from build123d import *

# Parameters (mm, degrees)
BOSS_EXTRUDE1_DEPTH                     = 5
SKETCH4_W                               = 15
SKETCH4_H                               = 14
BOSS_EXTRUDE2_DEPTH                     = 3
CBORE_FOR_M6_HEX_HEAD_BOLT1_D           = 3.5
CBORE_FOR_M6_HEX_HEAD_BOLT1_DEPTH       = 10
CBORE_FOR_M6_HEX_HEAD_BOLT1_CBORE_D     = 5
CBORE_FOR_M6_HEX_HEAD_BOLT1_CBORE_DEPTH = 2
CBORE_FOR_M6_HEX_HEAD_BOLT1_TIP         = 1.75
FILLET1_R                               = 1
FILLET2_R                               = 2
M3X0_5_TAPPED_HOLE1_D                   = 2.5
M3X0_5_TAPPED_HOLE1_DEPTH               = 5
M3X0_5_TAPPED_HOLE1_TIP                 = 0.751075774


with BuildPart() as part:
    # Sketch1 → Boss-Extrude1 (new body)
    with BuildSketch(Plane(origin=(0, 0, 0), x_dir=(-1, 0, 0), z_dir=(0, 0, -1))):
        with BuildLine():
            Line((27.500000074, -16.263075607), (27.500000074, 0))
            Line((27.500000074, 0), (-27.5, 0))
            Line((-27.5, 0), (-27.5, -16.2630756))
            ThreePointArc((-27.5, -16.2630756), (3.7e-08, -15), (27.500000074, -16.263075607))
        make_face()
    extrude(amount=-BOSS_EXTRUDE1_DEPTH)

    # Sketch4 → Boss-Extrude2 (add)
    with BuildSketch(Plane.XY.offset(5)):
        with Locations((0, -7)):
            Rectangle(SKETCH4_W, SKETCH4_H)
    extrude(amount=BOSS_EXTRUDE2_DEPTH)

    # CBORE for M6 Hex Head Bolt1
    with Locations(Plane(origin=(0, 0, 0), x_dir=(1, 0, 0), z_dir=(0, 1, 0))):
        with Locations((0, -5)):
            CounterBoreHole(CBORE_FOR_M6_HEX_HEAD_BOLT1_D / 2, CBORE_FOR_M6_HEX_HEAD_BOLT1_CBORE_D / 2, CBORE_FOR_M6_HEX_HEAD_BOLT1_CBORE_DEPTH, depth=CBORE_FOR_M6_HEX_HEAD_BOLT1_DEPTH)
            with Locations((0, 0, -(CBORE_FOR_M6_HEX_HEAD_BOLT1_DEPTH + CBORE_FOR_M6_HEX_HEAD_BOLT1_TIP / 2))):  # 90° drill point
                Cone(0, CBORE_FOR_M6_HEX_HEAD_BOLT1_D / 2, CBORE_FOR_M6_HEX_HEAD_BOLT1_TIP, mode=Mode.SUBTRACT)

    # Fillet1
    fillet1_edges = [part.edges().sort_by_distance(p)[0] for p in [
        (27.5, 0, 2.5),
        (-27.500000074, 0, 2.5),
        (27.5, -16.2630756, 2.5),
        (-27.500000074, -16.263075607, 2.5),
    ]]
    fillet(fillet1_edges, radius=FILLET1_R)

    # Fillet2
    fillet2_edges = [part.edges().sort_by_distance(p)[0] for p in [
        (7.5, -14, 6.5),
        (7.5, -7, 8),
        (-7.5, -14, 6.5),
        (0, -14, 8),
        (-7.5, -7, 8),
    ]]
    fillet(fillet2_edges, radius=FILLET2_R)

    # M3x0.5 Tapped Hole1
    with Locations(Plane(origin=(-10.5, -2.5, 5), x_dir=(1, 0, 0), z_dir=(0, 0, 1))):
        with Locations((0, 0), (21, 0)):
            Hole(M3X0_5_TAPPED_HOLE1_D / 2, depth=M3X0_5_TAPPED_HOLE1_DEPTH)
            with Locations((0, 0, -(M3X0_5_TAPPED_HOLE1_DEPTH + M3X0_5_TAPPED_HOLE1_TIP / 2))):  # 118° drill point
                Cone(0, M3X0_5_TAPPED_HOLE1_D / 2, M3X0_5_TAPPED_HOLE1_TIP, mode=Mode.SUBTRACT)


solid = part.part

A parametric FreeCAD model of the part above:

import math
import FreeCAD as App
import Part
import Sketcher

V = App.Vector
Q = App.Units.Quantity


def edges_at(feature, points):
    """Names of the edges that pass closest to the given points."""
    edges = feature.Shape.Edges
    near = lambda p: min(range(len(edges)), key=lambda i: edges[i].distToShape(Part.Vertex(*p))[0])
    return sorted({f"Edge{near(p) + 1}" for p in points})


def add_polygon(sketch, points):
    """Adds a closed chain of lines whose ends are joined by coincident constraints."""
    first, n = sketch.GeometryCount, len(points)
    for a, b in zip(points, points[1:] + points[:1]):
        sketch.addGeometry(Part.LineSegment(App.Vector(*a, 0), App.Vector(*b, 0)), False)
    for i in range(n):
        sketch.addConstraint(Sketcher.Constraint("Coincident", first + i, 2, first + (i + 1) % n, 1))

doc = App.newDocument("Part")
body = doc.addObject("PartDesign::Body", "Body")

# Sketch on XY plane
sketch1 = doc.addObject("Sketcher::SketchObject", "Sketch")
body.addObject(sketch1)
sketch1.AttachmentSupport = (doc.XY_Plane, [""])
sketch1.MapMode = "FlatFace"
sketch1.addGeometry(Part.LineSegment(V(-28, -16, 0), V(-28, 0, 0)), False)
sketch1.addGeometry(Part.LineSegment(V(-28, 0, 0), V(28, 0, 0)), False)
sketch1.addGeometry(Part.LineSegment(V(28, 0, 0), V(28, -16, 0)), False)
sketch1.addGeometry(Part.ArcOfCircle(Part.Circle(V(0, -315, 0), V(0, 0, 1), 300), math.radians(84.74), math.radians(95.26)), False)
sketch1.addConstraint(Sketcher.Constraint("Coincident", 0, 2, 1, 1))
sketch1.addConstraint(Sketcher.Constraint("Coincident", 1, 2, 2, 1))
sketch1.addConstraint(Sketcher.Constraint("Coincident", 2, 2, 3, 1))
sketch1.addConstraint(Sketcher.Constraint("Coincident", 3, 2, 0, 1))
sketch1.addConstraint(Sketcher.Constraint("Vertical", 0))
sketch1.addConstraint(Sketcher.Constraint("Horizontal", 1))
sketch1.addConstraint(Sketcher.Constraint("Vertical", 2))
sketch1.addConstraint(Sketcher.Constraint("Symmetric", 0, 2, 1, 2, -1, 1))
sketch1.addConstraint(Sketcher.Constraint("PointOnObject", 3, 3, -2))
sketch1.addConstraint(Sketcher.Constraint("Radius", 3, Q("300 mm")))
sketch1.addConstraint(Sketcher.Constraint("DistanceX", 1, 1, 1, 2, Q("55 mm")))
sketch1.addConstraint(Sketcher.Constraint("DistanceY", 3, 3, -1, 1, Q("315 mm")))
pad1 = doc.addObject("PartDesign::Pad", "Pad")
body.addObject(pad1)
pad1.Profile = sketch1
pad1.Length = 5

# Sketch on XY plane
sketch2 = doc.addObject("Sketcher::SketchObject", "Sketch001")
body.addObject(sketch2)
sketch2.AttachmentSupport = (doc.XY_Plane, [""])
sketch2.MapMode = "FlatFace"
sketch2.AttachmentOffset = App.Placement(V(0, 0, 5), App.Rotation())
add_polygon(sketch2, [(-8, 0), (-8, -14), (8, -14), (8, 0)])  # lines 0-3
sketch2.addConstraint(Sketcher.Constraint("Vertical", 0))
sketch2.addConstraint(Sketcher.Constraint("Horizontal", 1))
sketch2.addConstraint(Sketcher.Constraint("Vertical", 2))
sketch2.addConstraint(Sketcher.Constraint("Horizontal", 3))
sketch2.addConstraint(Sketcher.Constraint("Symmetric", 2, 2, 3, 2, -1, 1))
sketch2.addConstraint(Sketcher.Constraint("DistanceX", 1, 1, 1, 2, Q("15 mm")))
sketch2.addConstraint(Sketcher.Constraint("DistanceY", 0, 2, 0, 1, Q("14 mm")))
pad2 = doc.addObject("PartDesign::Pad", "Pad001")
body.addObject(pad2)
pad2.Profile = sketch2
pad2.Length = 3

# Sketch on XZ plane
sketch3 = doc.addObject("Sketcher::SketchObject", "Sketch002")
body.addObject(sketch3)
sketch3.AttachmentSupport = (doc.XZ_Plane, [""])
sketch3.MapMode = "FlatFace"
sketch3.addGeometry(Part.Circle(V(0, 5, 0), V(0, 0, 1), 1.8), False)
sketch3.addConstraint(Sketcher.Constraint("PointOnObject", 0, 3, -2))
sketch3.addConstraint(Sketcher.Constraint("Diameter", 0, Q("3.5 mm")))
sketch3.addConstraint(Sketcher.Constraint("DistanceY", -1, 1, 0, 3, Q("5 mm")))
doc.recompute()
hole = doc.addObject("PartDesign::Hole", "Hole")
body.addObject(hole)
hole.Profile = sketch3
hole.ThreadType = "None"
hole.Diameter = 3.5
hole.DepthType = "Dimension"
hole.Depth = 10
hole.DrillPoint = "Angled"
hole.DrillPointAngle = 90
hole.HoleCutType = "Counterbore"
hole.HoleCutDiameter = 5
hole.HoleCutDepth = 2
hole.Reversed = True
doc.recompute()

fillet = doc.addObject("PartDesign::Fillet", "Fillet")
body.addObject(fillet)
fillet.Base = (hole, edges_at(hole, [
    (27.5, 0, 2.5),
    (-27.5, 0, 2.5),
    (27.5, -16.263, 2.5),
    (-27.5, -16.263, 2.5),
]))
fillet.Radius = 1
doc.recompute()

fillet2 = doc.addObject("PartDesign::Fillet", "Fillet001")
body.addObject(fillet2)
fillet2.Base = (fillet, edges_at(fillet, [
    (7.5, -14, 6.5),
    (7.5, -7, 8),
    (-7.5, -14, 6.5),
    (0, -14, 8),
    (-7.5, -7, 8),
]))
fillet2.Radius = 2

# Sketch on XY plane
sketch4 = doc.addObject("Sketcher::SketchObject", "Sketch003")
body.addObject(sketch4)
sketch4.AttachmentSupport = (doc.XY_Plane, [""])
sketch4.MapMode = "FlatFace"
sketch4.AttachmentOffset = App.Placement(V(0, 0, 5), App.Rotation())
sketch4.addGeometry(Part.Circle(V(-10.5, -2.5, 0), V(0, 0, 1), 1.2), False)
sketch4.addGeometry(Part.Circle(V(10.5, -2.5, 0), V(0, 0, 1), 1.2), False)
sketch4.addConstraint(Sketcher.Constraint("Equal", 0, 1))
sketch4.addConstraint(Sketcher.Constraint("Symmetric", 0, 3, 1, 3, -2))
sketch4.addConstraint(Sketcher.Constraint("Diameter", 0, Q("2.5 mm")))
sketch4.addConstraint(Sketcher.Constraint("DistanceX", 0, 3, 1, 3, Q("21 mm")))
sketch4.addConstraint(Sketcher.Constraint("DistanceY", 0, 3, -1, 1, Q("2.5 mm")))
doc.recompute()
hole2 = doc.addObject("PartDesign::Hole", "Hole001")
body.addObject(hole2)
hole2.Profile = sketch4
hole2.ThreadType = "None"
hole2.Diameter = 2.5
hole2.DepthType = "Dimension"
hole2.Depth = 5
hole2.DrillPoint = "Angled"
hole2.DrillPointAngle = 118

doc.recompute()
